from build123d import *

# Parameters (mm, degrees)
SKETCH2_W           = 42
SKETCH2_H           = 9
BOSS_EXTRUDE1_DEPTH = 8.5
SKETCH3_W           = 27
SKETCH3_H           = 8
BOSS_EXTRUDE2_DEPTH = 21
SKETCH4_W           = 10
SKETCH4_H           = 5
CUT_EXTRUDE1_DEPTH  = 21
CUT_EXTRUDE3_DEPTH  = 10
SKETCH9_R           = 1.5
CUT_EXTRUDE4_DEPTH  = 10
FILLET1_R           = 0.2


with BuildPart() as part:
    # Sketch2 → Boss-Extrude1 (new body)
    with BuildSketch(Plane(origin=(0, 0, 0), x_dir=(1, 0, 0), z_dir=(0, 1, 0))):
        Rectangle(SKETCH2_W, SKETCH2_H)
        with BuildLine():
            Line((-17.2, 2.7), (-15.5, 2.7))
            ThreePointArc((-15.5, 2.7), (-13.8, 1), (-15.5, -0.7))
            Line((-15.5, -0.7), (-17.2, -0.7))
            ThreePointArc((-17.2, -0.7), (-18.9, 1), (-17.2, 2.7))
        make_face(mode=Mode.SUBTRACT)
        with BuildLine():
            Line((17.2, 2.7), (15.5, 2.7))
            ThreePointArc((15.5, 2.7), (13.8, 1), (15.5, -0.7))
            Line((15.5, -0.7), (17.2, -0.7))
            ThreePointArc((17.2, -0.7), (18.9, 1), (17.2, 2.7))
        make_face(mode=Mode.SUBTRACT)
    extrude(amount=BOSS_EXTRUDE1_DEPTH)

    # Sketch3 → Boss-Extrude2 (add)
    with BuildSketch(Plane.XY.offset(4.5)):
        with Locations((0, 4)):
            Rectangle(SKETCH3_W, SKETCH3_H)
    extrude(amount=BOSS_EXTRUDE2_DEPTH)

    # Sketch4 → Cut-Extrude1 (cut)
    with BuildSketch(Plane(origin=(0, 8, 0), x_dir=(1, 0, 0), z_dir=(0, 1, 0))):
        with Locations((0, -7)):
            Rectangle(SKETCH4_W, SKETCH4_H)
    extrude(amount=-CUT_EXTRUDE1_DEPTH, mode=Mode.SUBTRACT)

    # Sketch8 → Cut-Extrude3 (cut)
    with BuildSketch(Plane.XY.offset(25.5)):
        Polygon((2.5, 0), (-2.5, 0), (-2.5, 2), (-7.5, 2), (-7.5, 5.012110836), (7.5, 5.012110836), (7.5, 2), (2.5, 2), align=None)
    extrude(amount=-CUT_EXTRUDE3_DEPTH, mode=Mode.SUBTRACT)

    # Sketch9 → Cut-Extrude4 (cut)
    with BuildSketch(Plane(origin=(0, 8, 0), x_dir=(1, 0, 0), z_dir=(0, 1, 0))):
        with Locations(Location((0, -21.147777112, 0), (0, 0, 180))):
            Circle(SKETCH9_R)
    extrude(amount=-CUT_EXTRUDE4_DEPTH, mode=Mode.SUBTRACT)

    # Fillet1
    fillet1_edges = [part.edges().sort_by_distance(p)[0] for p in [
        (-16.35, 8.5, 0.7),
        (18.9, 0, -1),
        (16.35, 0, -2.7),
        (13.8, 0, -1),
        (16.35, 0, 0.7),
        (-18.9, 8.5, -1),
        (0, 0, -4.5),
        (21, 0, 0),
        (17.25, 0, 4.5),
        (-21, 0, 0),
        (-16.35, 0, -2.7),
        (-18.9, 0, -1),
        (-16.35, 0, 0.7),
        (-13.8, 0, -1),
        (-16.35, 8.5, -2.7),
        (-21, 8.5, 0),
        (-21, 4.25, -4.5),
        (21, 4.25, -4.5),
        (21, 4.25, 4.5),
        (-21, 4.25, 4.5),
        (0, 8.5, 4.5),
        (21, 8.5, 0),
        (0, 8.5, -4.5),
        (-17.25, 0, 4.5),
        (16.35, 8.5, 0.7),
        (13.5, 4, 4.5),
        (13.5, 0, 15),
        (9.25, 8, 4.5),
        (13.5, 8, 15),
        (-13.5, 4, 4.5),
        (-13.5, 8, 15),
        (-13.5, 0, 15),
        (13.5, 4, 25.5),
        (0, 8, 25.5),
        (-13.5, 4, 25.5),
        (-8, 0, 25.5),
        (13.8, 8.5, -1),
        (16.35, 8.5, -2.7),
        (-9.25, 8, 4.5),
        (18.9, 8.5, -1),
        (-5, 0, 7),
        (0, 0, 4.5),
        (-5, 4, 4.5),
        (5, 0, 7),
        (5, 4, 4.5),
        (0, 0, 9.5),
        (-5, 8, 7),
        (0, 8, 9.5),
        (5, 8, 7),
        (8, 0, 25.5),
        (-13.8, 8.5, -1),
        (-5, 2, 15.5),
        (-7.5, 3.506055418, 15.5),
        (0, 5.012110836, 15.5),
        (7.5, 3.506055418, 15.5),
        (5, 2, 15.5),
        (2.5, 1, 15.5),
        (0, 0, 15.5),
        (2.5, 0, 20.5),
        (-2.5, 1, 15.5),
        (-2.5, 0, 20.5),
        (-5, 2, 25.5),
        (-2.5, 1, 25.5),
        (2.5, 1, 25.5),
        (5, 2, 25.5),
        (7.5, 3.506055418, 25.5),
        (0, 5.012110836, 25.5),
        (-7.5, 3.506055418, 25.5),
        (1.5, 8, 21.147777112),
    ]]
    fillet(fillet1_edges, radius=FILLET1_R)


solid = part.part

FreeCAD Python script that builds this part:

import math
import FreeCAD as App
import Part
import Sketcher
from FreeCAD import Vector
Q = App.Units.Quantity


def edges_at(feature, points):
    """Names of the edges that pass closest to the given points."""
    edges = feature.Shape.Edges
    near = lambda p: min(range(len(edges)), key=lambda i: edges[i].distToShape(Part.Vertex(*p))[0])
    return sorted({f"Edge{near(p) + 1}" for p in points})


def add_polygon(sketch, points):
    """Adds a closed chain of lines whose ends are joined by coincident constraints."""
    first, n = sketch.GeometryCount, len(points)
    for a, b in zip(points, points[1:] + points[:1]):
        sketch.addGeometry(Part.LineSegment(App.Vector(*a, 0), App.Vector(*b, 0)), False)
    for i in range(n):
        sketch.addConstraint(Sketcher.Constraint("Coincident", first + i, 2, first + (i + 1) % n, 1))

doc = App.newDocument("Part")
params = doc.addObject("Spreadsheet::Sheet", "Params")
for row, (alias, value) in enumerate([
    ("sketch1_radius", "1.7 mm"),
    ("sketch1_width", "42 mm"),
    ("sketch1_height", "9 mm"),
    ("sketch1_width2", "1.7 mm"),
    ("pad1_length", "8.5 mm"),
    ("sketch2_width", "27 mm"),
    ("sketch2_height", "8 mm"),
    ("pad2_length", "21 mm"),
    ("sketch3_width", "10 mm"),
    ("sketch3_height", "5 mm"),
    ("pocket1_length", "21 mm"),
    ("sketch4_width", "5 mm"),
    ("sketch4_height", "2 mm"),
    ("pocket2_length", "10 mm"),
    ("sketch5_diameter", "3 mm"),
    ("pocket3_length", "10 mm"),
    ("fillet_radius", "0.2 mm"),
], start=1):
    params.set(f"A{row}", alias)
    params.set(f"B{row}", "=" + value)
    params.setAlias(f"B{row}", alias)

body = doc.addObject("PartDesign::Body", "Body")

# Sketch on XZ plane
sketch1 = doc.addObject("Sketcher::SketchObject", "Sketch")
body.addObject(sketch1)
sketch1.AttachmentSupport = (doc.XZ_Plane, [""])
sketch1.MapMode = "FlatFace"
add_polygon(sketch1, [(-21, -4.5), (-21, 4.5), (21, 4.5), (21, -4.5)])  # lines 0-3
sketch1.addGeometry(Part.ArcOfCircle(Part.Circle(Vector(-17.2, -1, 0), Vector(0, 0, 1), 1.7), math.radians(90), math.radians(270)), False)  # 4
sketch1.addGeometry(Part.LineSegment(Vector(-17.2, -2.7, 0), Vector(-15.5, -2.7, 0)), False)  # 5
sketch1.addGeometry(Part.ArcOfCircle(Part.Circle(Vector(-15.5, -1, 0), Vector(0, 0, 1), 1.7), math.radians(-90), math.radians(90)), False)  # 6
sketch1.addGeometry(Part.LineSegment(Vector(-15.5, 0.7, 0), Vector(-17.2, 0.7, 0)), False)  # 7
sketch1.addGeometry(Part.LineSegment(Vector(15.5, -2.7, 0), Vector(17.2, -2.7, 0)), False)  # 8
sketch1.addGeometry(Part.ArcOfCircle(Part.Circle(Vector(17.2, -1, 0), Vector(0, 0, 1), 1.7), math.radians(-90), math.radians(90)), False)  # 9
sketch1.addGeometry(Part.LineSegment(Vector(17.2, 0.7, 0), Vector(15.5, 0.7, 0)), False)  # 10
sketch1.addGeometry(Part.ArcOfCircle(Part.Circle(Vector(15.5, -1, 0), Vector(0, 0, 1), 1.7), math.radians(90), math.radians(270)), False)  # 11
sketch1.addConstraint([
    Sketcher.Constraint("Tangent", 4, 2, 5, 1),
    Sketcher.Constraint("Tangent", 5, 2, 6, 1),
    Sketcher.Constraint("Tangent", 6, 2, 7, 1),
    Sketcher.Constraint("Tangent", 7, 2, 4, 1),
    Sketcher.Constraint("Tangent", 8, 2, 9, 1),
    Sketcher.Constraint("Tangent", 9, 2, 10, 1),
    Sketcher.Constraint("Tangent", 10, 2, 11, 1),
    Sketcher.Constraint("Tangent", 11, 2, 8, 1),
    Sketcher.Constraint("Vertical", 0),
    Sketcher.Constraint("Horizontal", 1),
    Sketcher.Constraint("Vertical", 2),
    Sketcher.Constraint("Horizontal", 3),
    Sketcher.Constraint("Horizontal", 5),
    Sketcher.Constraint("Horizontal", 7),
    Sketcher.Constraint("Horizontal", 8),
    Sketcher.Constraint("Horizontal", 10),
    Sketcher.Constraint("Equal", 6, 9),
    Sketcher.Constraint("Symmetric", 0, 2, 2, 2, -1, 1),
    Sketcher.Constraint("Symmetric", 4, 3, 9, 3, -2),
    Sketcher.Constraint("Equal", 7, 8),
    Sketcher.Constraint("Radius", 4, Q("1.7 mm")),
    Sketcher.Constraint("DistanceX", 1, 1, 1, 2, Q("42 mm")),
    Sketcher.Constraint("DistanceY", 0, 1, 0, 2, Q("9 mm")),
    Sketcher.Constraint("DistanceX", 5, 1, 5, 2, Q("1.7 mm")),
    Sketcher.Constraint("DistanceY", 4, 3, -1, 1, Q("1 mm")),
    Sketcher.Constraint("DistanceX", 6, 3, 11, 3, Q("31 mm")),
])
sketch1.setExpression("Constraints[24]", "Params.sketch1_radius")
sketch1.setExpression("Constraints[25]", "Params.sketch1_width")
sketch1.setExpression("Constraints[26]", "Params.sketch1_height")
sketch1.setExpression("Constraints[27]", "Params.sketch1_width2")
pad1 = doc.addObject("PartDesign::Pad", "Pad")
body.addObject(pad1)
pad1.Profile = sketch1
pad1.setExpression("Length", "Params.pad1_length")
pad1.Reversed = True

# Sketch on XY plane
sketch2 = doc.addObject("Sketcher::SketchObject", "Sketch001")
body.addObject(sketch2)
sketch2.AttachmentSupport = (doc.XY_Plane, [""])
sketch2.MapMode = "FlatFace"
sketch2.AttachmentOffset = App.Placement(Vector(0, 0, 4.5), App.Rotation())
add_polygon(sketch2, [(-14, 8), (-14, 0), (14, 0), (14, 8)])  # lines 0-3
sketch2.addConstraint([
    Sketcher.Constraint("Vertical", 0),
    Sketcher.Constraint("Horizontal", 1),
    Sketcher.Constraint("Vertical", 2),
    Sketcher.Constraint("Horizontal", 3),
    Sketcher.Constraint("Symmetric", 0, 2, 1, 2, -1, 1),
    Sketcher.Constraint("DistanceX", 1, 1, 1, 2, Q("27 mm")),
    Sketcher.Constraint("DistanceY", 0, 2, 0, 1, Q("8 mm")),
])
sketch2.setExpression("Constraints[9]", "Params.sketch2_width")
sketch2.setExpression("Constraints[10]", "Params.sketch2_height")
pad2 = doc.addObject("PartDesign::Pad", "Pad001")
body.addObject(pad2)
pad2.Profile = sketch2
pad2.setExpression("Length", "Params.pad2_length")

# Sketch on XZ plane
sketch3 = doc.addObject("Sketcher::SketchObject", "Sketch002")
body.addObject(sketch3)
sketch3.AttachmentSupport = (doc.XZ_Plane, [""])
sketch3.MapMode = "FlatFace"
sketch3.AttachmentOffset = App.Placement(Vector(0, 0, -8), App.Rotation())
add_polygon(sketch3, [(-5, 4), (-5, 10), (5, 10), (5, 4)])  # lines 0-3
sketch3.addConstraint([
    Sketcher.Constraint("Vertical", 0),
    Sketcher.Constraint("Horizontal", 1),
    Sketcher.Constraint("Vertical", 2),
    Sketcher.Constraint("Horizontal", 3),
    Sketcher.Constraint("DistanceX", 1, 1, 1, 2, Q("10 mm")),
    Sketcher.Constraint("DistanceY", 0, 1, 0, 2, Q("5 mm")),
    Sketcher.Constraint("DistanceX", 0, 2, -1, 1, Q("5 mm")),
    Sketcher.Constraint("DistanceY", -1, 1, 0, 2, Q("9.5 mm")),
])
sketch3.setExpression("Constraints[8]", "Params.sketch3_width")
sketch3.setExpression("Constraints[9]", "Params.sketch3_height")
pocket1 = doc.addObject("PartDesign::Pocket", "Pocket")
body.addObject(pocket1)
pocket1.Profile = sketch3
pocket1.setExpression("Length", "Params.pocket1_length")
pocket1.Reversed = True

# Sketch on XY plane
sketch4 = doc.addObject("Sketcher::SketchObject", "Sketch003")
body.addObject(sketch4)
sketch4.AttachmentSupport = (doc.XY_Plane, [""])
sketch4.MapMode = "FlatFace"
sketch4.AttachmentOffset = App.Placement(Vector(0, 0, 25.5), App.Rotation())
add_polygon(sketch4, [(-2.5, 0), (2.5, 0), (2.5, 2), (7.5, 2), (7.5, 5), (-7.5, 5), (-7.5, 2), (-2.5, 2)])  # lines 0-7
sketch4.addConstraint([
    Sketcher.Constraint("Horizontal", 0),
    Sketcher.Constraint("Vertical", 1),
    Sketcher.Constraint("Horizontal", 2),
    Sketcher.Constraint("Vertical", 3),
    Sketcher.Constraint("Horizontal", 4),
    Sketcher.Constraint("Vertical", 5),
    Sketcher.Constraint("Horizontal", 6),
    Sketcher.Constraint("Vertical", 7),
    Sketcher.Constraint("Symmetric", 0, 2, 7, 2, -1, 1),
    Sketcher.Constraint("Symmetric", 2, 2, 5, 2, -2),
    Sketcher.Constraint("Equal", 0, 2),
    Sketcher.Constraint("DistanceX", 0, 1, 0, 2, Q("5 mm")),
    Sketcher.Constraint("DistanceY", 1, 1, 1, 2, Q("2 mm")),
    Sketcher.Constraint("DistanceY", 3, 1, 3, 2, Q("3.012111 mm")),
])
sketch4.setExpression("Constraints[19]", "Params.sketch4_width")
sketch4.setExpression("Constraints[20]", "Params.sketch4_height")
pocket2 = doc.addObject("PartDesign::Pocket", "Pocket001")
body.addObject(pocket2)
pocket2.Profile = sketch4
pocket2.setExpression("Length", "Params.pocket2_length")

# Sketch on XZ plane
sketch5 = doc.addObject("Sketcher::SketchObject", "Sketch004")
body.addObject(sketch5)
sketch5.AttachmentSupport = (doc.XZ_Plane, [""])
sketch5.MapMode = "FlatFace"
sketch5.AttachmentOffset = App.Placement(Vector(0, 0, -8), App.Rotation())
sketch5.addGeometry(Part.Circle(Vector(0, 21.1, 0), Vector(0, 0, 1), 1.5), False)
sketch5.addConstraint([
    Sketcher.Constraint("PointOnObject", 0, 3, -2),
    Sketcher.Constraint("Diameter", 0, Q("3 mm")),
    Sketcher.Constraint("DistanceY", -1, 1, 0, 3, Q("21.147777 mm")),
])
sketch5.setExpression("Constraints[1]", "Params.sketch5_diameter")
pocket3 = doc.addObject("PartDesign::Pocket", "Pocket002")
body.addObject(pocket3)
pocket3.Profile = sketch5
pocket3.setExpression("Length", "Params.pocket3_length")
pocket3.Reversed = True
doc.recompute()

fillet = doc.addObject("PartDesign::Fillet", "Fillet")
body.addObject(fillet)
fillet.Base = (pocket3, edges_at(pocket3, [
    (-16.35, 8.5, 0.7),
    (18.9, 0, -1),
    (16.35, 0, -2.7),
    (13.8, 0, -1),
    (16.35, 0, 0.7),
    (-18.9, 8.5, -1),
    (0, 0, -4.5),
    (21, 0, 0),
    (17.25, 0, 4.5),
    (-21, 0, 0),
    (-16.35, 0, -2.7),
    (-18.9, 0, -1),
    (-16.35, 0, 0.7),
    (-13.8, 0, -1),
    (-16.35, 8.5, -2.7),
    (-21, 8.5, 0),
    (-21, 4.25, -4.5),
    (21, 4.25, -4.5),
    (21, 4.25, 4.5),
    (-21, 4.25, 4.5),
    (0, 8.5, 4.5),
    (21, 8.5, 0),
    (0, 8.5, -4.5),
    (-17.25, 0, 4.5),
    (16.35, 8.5, 0.7),
    (13.5, 4, 4.5),
    (13.5, 0, 15),
    (9.25, 8, 4.5),
    (13.5, 8, 15),
    (-13.5, 4, 4.5),
    (-13.5, 8, 15),
    (-13.5, 0, 15),
    (13.5, 4, 25.5),
    (0, 8, 25.5),
    (-13.5, 4, 25.5),
    (-8, 0, 25.5),
    (13.8, 8.5, -1),
    (16.35, 8.5, -2.7),
    (-9.25, 8, 4.5),
    (18.9, 8.5, -1),
    (-5, 0, 7),
    (0, 0, 4.5),
    (-5, 4, 4.5),
    (5, 0, 7),
    (5, 4, 4.5),
    (0, 0, 9.5),
    (-5, 8, 7),
    (0, 8, 9.5),
    (5, 8, 7),
    (8, 0, 25.5),
    (-13.8, 8.5, -1),
    (-5, 2, 15.5),
    (-7.5, 3.506, 15.5),
    (0, 5.012, 15.5),
    (7.5, 3.506, 15.5),
    (5, 2, 15.5),
    (2.5, 1, 15.5),
    (0, 0, 15.5),
    (2.5, 0, 20.5),
    (-2.5, 1, 15.5),
    (-2.5, 0, 20.5),
    (-5, 2, 25.5),
    (-2.5, 1, 25.5),
    (2.5, 1, 25.5),
    (5, 2, 25.5),
    (7.5, 3.506, 25.5),
    (0, 5.012, 25.5),
    (-7.5, 3.506, 25.5),
    (1.5, 8, 21.148),
]))
fillet.setExpression("Radius", "Params.fillet_radius")

doc.recompute()
